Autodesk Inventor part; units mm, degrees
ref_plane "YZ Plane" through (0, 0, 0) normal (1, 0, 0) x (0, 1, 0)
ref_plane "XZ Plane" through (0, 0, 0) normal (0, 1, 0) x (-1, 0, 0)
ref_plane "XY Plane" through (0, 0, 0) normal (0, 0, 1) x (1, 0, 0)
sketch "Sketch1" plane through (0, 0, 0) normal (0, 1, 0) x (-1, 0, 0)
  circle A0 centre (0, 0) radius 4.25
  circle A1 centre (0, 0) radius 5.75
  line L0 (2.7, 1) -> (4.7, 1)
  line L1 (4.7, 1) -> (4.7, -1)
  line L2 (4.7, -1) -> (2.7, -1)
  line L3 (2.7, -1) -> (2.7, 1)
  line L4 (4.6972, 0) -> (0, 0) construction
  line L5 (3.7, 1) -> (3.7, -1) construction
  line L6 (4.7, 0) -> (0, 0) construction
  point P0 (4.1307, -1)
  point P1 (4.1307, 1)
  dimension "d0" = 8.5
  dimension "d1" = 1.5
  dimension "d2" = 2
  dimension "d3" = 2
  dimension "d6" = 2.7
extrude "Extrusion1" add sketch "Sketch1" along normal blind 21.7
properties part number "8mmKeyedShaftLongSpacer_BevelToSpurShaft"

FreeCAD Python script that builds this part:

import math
import FreeCAD as App
import Part
import Sketcher
from FreeCAD import Vector

doc = App.newDocument("Part")
params = doc.addObject("Spreadsheet::Sheet", "Params")
for row, (alias, value) in enumerate([
    ("sketch1_height", "2 mm"),
    ("sketch1_radius", "4.25 mm"),
    ("sketch1_diameter", "11.5 mm"),
    ("pad1_length", "21.7 mm"),
], start=1):
    params.set(f"A{row}", alias)
    params.set(f"B{row}", "=" + value)
    params.setAlias(f"B{row}", alias)

body = doc.addObject("PartDesign::Body", "Body")

# Sketch on XZ plane
sketch1 = body.newObject("Sketcher::SketchObject", "Sketch")
sketch1.AttachmentSupport = (doc.getObject("XZ_Plane"), [""])
sketch1.MapMode = "FlatFace"
sketch1.addGeometry(Part.Circle(Vector(0, 0, 0), Vector(0, 0, 1), 5.8), False)
sketch1.addGeometry(Part.ArcOfCircle(Part.Circle(Vector(0, 0, 0), Vector(0, 0, 1), 4.2), math.radians(-166), math.radians(166)), False)
sketch1.addGeometry(Part.LineSegment(Vector(-4.1, 1, 0), Vector(-4.7, 1, 0)), False)
sketch1.addGeometry(Part.LineSegment(Vector(-4.7, 1, 0), Vector(-4.7, -1, 0)), False)
sketch1.addGeometry(Part.LineSegment(Vector(-4.7, -1, 0), Vector(-4.1, -1, 0)), False)
sketch1.addConstraint(Sketcher.Constraint("Coincident", 1, 2, 2, 1))
sketch1.addConstraint(Sketcher.Constraint("Coincident", 2, 2, 3, 1))
sketch1.addConstraint(Sketcher.Constraint("Coincident", 3, 2, 4, 1))
sketch1.addConstraint(Sketcher.Constraint("Coincident", 4, 2, 1, 1))
sketch1.addConstraint(Sketcher.Constraint("Horizontal", 2))
sketch1.addConstraint(Sketcher.Constraint("Vertical", 3))
sketch1.addConstraint(Sketcher.Constraint("Horizontal", 4))
sketch1.addConstraint(Sketcher.Constraint("Coincident", 0, 3, -1, 1))
sketch1.addConstraint(Sketcher.Constraint("Coincident", 1, 3, -1, 1))
sketch1.addConstraint(Sketcher.Constraint("Vertical", 1, 2, 4, 2))
sketch1.addConstraint(Sketcher.Constraint("DistanceY", 3, 2, 3, 1, 2.0))
sketch1.addConstraint(Sketcher.Constraint("Radius", 1, 4.25))
sketch1.addConstraint(Sketcher.Constraint("Diameter", 0, 11.5))
sketch1.addConstraint(Sketcher.Constraint("DistanceX", 2, 2, -1, 1, 4.7))
sketch1.setExpression("Constraints[10]", "Params.sketch1_height")
sketch1.setExpression("Constraints[11]", "Params.sketch1_radius")
sketch1.setExpression("Constraints[12]", "Params.sketch1_diameter")
pad1 = body.newObject("PartDesign::Pad", "Pad")
pad1.Profile = sketch1
pad1.setExpression("Length", "Params.pad1_length")
pad1.Reversed = True

doc.recompute()
